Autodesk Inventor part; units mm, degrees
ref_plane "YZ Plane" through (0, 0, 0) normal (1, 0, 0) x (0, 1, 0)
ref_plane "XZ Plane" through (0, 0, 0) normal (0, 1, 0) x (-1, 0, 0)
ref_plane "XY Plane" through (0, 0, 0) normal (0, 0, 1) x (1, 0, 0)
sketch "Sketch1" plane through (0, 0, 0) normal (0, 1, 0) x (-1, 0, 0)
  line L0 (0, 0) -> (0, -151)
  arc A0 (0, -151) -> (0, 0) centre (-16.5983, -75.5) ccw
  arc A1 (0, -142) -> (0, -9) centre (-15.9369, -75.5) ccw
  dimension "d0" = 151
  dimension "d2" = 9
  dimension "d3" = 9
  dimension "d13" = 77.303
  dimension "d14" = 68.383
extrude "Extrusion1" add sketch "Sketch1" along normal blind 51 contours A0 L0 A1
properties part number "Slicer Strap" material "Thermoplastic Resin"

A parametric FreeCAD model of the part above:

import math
import FreeCAD as App
import Part
import Sketcher
Q = App.Units.Quantity

doc = App.newDocument("Part")
body = doc.addObject("PartDesign::Body", "Body")

sketch1 = body.newObject("Sketcher::SketchObject", "Sketch")
sketch1.AttachmentSupport = (doc.getObject("XZ_Plane"), [""])
sketch1.MapMode = "FlatFace"
sketch1.addGeometry([
    Part.ArcOfCircle(Part.Circle(App.Vector(16.5983, -75.5, 0), App.Vector(0, 0, 1), 77.302998), math.radians(102.398949), math.radians(257.601051)),
    Part.LineSegment(App.Vector(0, 0, 0), App.Vector(0, -9, 0)),
    Part.ArcOfCircle(Part.Circle(App.Vector(15.9369, -75.5, 0), App.Vector(0, 0, 1), 68.383001), math.radians(103.476913), math.radians(256.523087)),
    Part.LineSegment(App.Vector(0, -142, 0), App.Vector(0, -151, 0)),
], False)
sketch1.addConstraint([
    Sketcher.Constraint("Coincident", 0, 1, 1, 1),
    Sketcher.Constraint("Coincident", 1, 2, 2, 1),
    Sketcher.Constraint("Coincident", 2, 2, 3, 1),
    Sketcher.Constraint("Coincident", 3, 2, 0, 2),
    Sketcher.Constraint("Vertical", 1),
    Sketcher.Constraint("Vertical", 3),
    Sketcher.Constraint("Coincident", 0, 1, -1, 1),
    Sketcher.Constraint("PointOnObject", 2, 2, -2),
    Sketcher.Constraint("Horizontal", 0, 3, 2, 3),
    Sketcher.Constraint("DistanceY", 1, 2, 1, 1, Q("9 mm")),
    Sketcher.Constraint("DistanceY", 3, 2, -1, 1, Q("151 mm")),
    Sketcher.Constraint("Radius", 0, Q("77.303 mm")),
    Sketcher.Constraint("Radius", 2, Q("68.383 mm")),
])
pad1 = body.newObject("PartDesign::Pad", "Pad")
pad1.Profile = sketch1
pad1.Length = 51
pad1.Reversed = True

doc.recompute()
